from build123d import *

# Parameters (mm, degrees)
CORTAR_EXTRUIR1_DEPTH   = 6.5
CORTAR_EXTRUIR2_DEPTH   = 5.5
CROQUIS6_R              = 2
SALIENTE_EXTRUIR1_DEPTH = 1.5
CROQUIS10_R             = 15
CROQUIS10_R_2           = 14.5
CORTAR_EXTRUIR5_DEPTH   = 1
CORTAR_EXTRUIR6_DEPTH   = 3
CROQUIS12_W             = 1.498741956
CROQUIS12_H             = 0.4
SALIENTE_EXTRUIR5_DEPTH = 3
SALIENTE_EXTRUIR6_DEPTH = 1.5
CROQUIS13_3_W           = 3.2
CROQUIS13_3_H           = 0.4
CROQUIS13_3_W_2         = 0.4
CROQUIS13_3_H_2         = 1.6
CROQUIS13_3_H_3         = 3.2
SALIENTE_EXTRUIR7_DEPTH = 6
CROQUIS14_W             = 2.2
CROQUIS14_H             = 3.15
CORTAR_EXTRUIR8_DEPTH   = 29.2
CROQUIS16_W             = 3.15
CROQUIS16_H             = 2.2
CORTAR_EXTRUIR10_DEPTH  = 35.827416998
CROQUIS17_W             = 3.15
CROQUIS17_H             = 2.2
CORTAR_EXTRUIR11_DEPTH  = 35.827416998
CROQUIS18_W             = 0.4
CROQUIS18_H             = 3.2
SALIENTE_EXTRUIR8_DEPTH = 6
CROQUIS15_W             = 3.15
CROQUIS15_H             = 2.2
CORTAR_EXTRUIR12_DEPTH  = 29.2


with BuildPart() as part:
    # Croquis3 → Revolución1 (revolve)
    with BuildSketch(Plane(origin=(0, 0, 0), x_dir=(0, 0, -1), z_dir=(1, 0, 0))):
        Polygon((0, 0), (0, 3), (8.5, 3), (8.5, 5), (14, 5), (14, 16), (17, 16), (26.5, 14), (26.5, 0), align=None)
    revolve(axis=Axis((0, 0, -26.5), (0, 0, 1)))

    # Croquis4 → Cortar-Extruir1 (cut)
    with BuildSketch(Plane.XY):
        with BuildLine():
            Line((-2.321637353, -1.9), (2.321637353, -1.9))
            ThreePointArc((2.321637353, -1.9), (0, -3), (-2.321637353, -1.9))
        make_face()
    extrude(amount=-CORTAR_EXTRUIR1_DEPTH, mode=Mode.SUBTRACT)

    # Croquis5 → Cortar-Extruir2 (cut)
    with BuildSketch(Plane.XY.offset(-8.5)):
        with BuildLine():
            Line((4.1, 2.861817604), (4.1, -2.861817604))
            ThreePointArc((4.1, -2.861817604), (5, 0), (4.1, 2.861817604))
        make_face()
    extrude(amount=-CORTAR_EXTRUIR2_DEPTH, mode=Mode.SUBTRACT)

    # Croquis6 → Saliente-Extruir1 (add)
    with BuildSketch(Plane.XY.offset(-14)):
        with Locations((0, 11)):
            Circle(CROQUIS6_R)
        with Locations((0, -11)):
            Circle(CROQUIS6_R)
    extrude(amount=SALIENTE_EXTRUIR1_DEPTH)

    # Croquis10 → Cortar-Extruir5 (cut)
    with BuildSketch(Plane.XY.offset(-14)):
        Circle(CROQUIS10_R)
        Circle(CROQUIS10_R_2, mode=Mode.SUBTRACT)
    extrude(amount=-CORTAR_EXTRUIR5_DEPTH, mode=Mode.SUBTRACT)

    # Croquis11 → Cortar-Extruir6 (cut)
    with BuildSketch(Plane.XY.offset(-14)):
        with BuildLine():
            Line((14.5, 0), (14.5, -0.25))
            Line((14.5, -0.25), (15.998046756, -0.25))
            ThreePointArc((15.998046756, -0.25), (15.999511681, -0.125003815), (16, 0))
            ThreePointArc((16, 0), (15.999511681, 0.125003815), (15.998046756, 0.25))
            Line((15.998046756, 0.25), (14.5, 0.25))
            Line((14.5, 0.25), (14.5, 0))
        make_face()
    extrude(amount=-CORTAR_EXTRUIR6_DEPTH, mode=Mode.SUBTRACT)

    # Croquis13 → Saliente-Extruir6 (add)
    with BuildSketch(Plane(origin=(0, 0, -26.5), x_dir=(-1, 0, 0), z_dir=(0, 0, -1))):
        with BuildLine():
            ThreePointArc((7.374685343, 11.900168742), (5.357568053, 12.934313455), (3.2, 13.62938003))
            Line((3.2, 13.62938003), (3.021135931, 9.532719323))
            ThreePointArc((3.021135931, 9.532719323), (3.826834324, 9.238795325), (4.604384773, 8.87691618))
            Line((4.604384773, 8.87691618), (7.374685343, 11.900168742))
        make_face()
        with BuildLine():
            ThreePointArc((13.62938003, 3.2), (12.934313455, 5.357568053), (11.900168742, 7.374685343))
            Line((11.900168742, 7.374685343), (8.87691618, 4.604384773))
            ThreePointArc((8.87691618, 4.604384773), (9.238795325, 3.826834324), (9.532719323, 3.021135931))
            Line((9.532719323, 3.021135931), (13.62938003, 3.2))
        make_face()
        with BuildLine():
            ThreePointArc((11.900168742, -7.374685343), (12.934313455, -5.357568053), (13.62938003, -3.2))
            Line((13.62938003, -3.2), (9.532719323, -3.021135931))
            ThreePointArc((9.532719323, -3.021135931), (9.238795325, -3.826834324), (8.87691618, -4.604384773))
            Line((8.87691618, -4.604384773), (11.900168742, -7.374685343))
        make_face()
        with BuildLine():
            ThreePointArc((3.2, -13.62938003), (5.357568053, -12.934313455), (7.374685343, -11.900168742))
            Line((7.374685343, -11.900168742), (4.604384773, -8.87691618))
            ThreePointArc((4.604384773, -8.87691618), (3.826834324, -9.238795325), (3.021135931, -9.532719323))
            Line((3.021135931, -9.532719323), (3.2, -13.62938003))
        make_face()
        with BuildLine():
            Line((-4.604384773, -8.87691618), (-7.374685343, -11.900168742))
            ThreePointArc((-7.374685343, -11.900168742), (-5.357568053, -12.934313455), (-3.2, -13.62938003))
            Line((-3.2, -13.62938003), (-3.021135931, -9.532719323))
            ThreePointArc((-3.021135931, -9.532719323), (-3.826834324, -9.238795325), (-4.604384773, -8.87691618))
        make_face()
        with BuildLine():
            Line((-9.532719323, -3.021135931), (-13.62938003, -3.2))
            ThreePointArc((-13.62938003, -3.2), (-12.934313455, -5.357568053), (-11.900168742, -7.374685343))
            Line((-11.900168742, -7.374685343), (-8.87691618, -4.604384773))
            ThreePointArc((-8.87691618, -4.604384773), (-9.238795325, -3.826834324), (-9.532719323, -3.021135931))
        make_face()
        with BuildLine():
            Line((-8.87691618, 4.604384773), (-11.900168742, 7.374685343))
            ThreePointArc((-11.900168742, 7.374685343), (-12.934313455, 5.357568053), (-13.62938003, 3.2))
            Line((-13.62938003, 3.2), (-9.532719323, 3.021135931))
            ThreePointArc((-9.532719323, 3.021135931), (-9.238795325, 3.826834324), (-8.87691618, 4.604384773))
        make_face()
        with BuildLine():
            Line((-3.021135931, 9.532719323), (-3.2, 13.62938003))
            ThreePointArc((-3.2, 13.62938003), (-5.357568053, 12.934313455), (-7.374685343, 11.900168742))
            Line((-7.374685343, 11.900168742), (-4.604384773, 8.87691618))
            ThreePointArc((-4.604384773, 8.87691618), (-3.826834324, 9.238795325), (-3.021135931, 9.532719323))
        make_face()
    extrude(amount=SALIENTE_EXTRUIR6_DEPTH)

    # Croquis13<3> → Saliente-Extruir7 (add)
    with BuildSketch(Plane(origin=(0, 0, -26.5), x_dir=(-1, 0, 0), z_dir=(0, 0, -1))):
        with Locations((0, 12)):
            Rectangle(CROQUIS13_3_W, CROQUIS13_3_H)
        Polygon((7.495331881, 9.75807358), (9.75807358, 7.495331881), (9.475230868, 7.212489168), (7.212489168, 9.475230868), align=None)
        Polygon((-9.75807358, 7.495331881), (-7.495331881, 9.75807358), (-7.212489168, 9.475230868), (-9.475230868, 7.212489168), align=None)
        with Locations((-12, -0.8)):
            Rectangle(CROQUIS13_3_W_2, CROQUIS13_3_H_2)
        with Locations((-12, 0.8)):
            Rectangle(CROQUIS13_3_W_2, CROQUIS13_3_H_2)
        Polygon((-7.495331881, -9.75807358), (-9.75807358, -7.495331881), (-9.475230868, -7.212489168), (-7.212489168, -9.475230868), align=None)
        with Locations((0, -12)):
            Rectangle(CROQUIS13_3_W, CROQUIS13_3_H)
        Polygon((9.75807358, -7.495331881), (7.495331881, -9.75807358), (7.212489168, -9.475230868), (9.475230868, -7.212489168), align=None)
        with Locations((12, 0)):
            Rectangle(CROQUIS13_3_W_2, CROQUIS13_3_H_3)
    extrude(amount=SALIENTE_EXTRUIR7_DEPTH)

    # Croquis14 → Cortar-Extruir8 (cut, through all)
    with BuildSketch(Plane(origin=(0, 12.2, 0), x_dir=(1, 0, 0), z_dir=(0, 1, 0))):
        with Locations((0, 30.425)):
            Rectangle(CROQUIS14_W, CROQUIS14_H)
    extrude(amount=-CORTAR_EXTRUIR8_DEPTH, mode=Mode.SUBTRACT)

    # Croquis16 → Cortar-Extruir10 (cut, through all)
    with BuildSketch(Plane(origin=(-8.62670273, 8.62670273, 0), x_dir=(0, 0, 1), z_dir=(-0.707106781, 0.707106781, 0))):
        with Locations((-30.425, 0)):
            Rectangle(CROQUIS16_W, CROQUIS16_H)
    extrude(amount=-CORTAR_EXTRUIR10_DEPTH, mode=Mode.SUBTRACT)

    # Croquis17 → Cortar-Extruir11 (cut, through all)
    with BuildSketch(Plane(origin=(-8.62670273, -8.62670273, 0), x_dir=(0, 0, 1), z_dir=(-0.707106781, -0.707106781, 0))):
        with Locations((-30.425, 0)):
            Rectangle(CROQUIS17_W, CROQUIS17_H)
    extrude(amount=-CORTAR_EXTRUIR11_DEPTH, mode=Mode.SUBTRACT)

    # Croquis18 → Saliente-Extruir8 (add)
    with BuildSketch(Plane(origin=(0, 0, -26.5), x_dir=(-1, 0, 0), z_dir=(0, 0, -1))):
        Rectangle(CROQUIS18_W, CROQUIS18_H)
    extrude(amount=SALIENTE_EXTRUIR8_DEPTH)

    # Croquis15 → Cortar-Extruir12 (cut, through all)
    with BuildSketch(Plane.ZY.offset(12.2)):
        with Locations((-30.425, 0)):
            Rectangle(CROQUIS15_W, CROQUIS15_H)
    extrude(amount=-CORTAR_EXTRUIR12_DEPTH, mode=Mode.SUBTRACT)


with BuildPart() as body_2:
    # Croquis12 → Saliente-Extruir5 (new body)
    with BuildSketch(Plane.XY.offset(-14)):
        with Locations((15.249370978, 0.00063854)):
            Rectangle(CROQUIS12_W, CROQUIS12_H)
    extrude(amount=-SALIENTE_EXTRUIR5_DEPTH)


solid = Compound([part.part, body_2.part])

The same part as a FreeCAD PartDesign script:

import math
import FreeCAD as App
import Part
import Sketcher
Q = App.Units.Quantity


def add_polygon(sketch, points):
    """Adds a closed chain of lines whose ends are joined by coincident constraints."""
    first, n = sketch.GeometryCount, len(points)
    for a, b in zip(points, points[1:] + points[:1]):
        sketch.addGeometry(Part.LineSegment(App.Vector(*a, 0), App.Vector(*b, 0)), False)
    for i in range(n):
        sketch.addConstraint(Sketcher.Constraint("Coincident", first + i, 2, first + (i + 1) % n, 1))

doc = App.newDocument("Part")
body = doc.addObject("PartDesign::Body", "Body")

sketch1 = body.newObject("Sketcher::SketchObject", "Sketch")
sketch1.AttachmentSupport = (doc.getObject("YZ_Plane"), [""])
sketch1.MapMode = "FlatFace"
add_polygon(sketch1, [(3, 0), (0, 0), (0, -26.5), (14, -26.5), (16, -17), (16, -14), (5, -14), (5, -8.5), (3, -8.5)])
sketch1.addConstraint(Sketcher.Constraint("Horizontal", 0))
sketch1.addConstraint(Sketcher.Constraint("Vertical", 1))
sketch1.addConstraint(Sketcher.Constraint("Horizontal", 2))
sketch1.addConstraint(Sketcher.Constraint("Vertical", 4))
sketch1.addConstraint(Sketcher.Constraint("Horizontal", 5))
sketch1.addConstraint(Sketcher.Constraint("Vertical", 6))
sketch1.addConstraint(Sketcher.Constraint("Horizontal", 7))
sketch1.addConstraint(Sketcher.Constraint("Vertical", 8))
sketch1.addConstraint(Sketcher.Constraint("Coincident", 0, 2, -1, 1))
sketch1.addConstraint(Sketcher.Constraint("Equal", 0, 4))
sketch1.addConstraint(Sketcher.Constraint("DistanceX", 0, 2, 0, 1, 3.0))
sketch1.addConstraint(Sketcher.Constraint("DistanceX", 2, 1, 2, 2, 14.0))
sketch1.addConstraint(Sketcher.Constraint("DistanceX", 5, 2, 5, 1, 11.0))
sketch1.addConstraint(Sketcher.Constraint("DistanceX", 7, 2, 7, 1, 2.0))
sketch1.addConstraint(Sketcher.Constraint("DistanceY", 1, 2, 1, 1, 26.5))
sketch1.addConstraint(Sketcher.Constraint("DistanceY", 6, 1, 6, 2, 5.5))
sketch1.addConstraint(Sketcher.Constraint("DistanceY", 8, 1, 8, 2, 8.5))
revolution = body.newObject("PartDesign::Revolution", "Revolution")
revolution.Profile = sketch1
revolution.ReferenceAxis = (sketch1, ["V_Axis"])
revolution.Angle = 360

sketch2 = body.newObject("Sketcher::SketchObject", "Sketch001")
sketch2.AttachmentSupport = (doc.getObject("XY_Plane"), [""])
sketch2.MapMode = "FlatFace"
sketch2.addGeometry(Part.LineSegment(App.Vector(2.3, -1.9, 0), App.Vector(-2.3, -1.9, 0)), False)
sketch2.addGeometry(Part.ArcOfCircle(Part.Circle(App.Vector(0, 0, 0), App.Vector(0, 0, 1), 3), math.radians(-141), math.radians(-39)), False)
sketch2.addConstraint(Sketcher.Constraint("Coincident", 0, 1, 1, 2))
sketch2.addConstraint(Sketcher.Constraint("Coincident", 1, 1, 0, 2))
sketch2.addConstraint(Sketcher.Constraint("Horizontal", 0))
sketch2.addConstraint(Sketcher.Constraint("Coincident", 1, 3, -1, 1))
sketch2.addConstraint(Sketcher.Constraint("Radius", 1, 3.0))
sketch2.addConstraint(Sketcher.Constraint("DistanceY", 0, 1, -1, 1, 1.9))
pocket1 = body.newObject("PartDesign::Pocket", "Pocket")
pocket1.Profile = sketch2
pocket1.Length = 6.5

sketch3 = body.newObject("Sketcher::SketchObject", "Sketch002")
sketch3.AttachmentSupport = (doc.getObject("XY_Plane"), [""])
sketch3.MapMode = "FlatFace"
sketch3.AttachmentOffset = App.Placement(App.Vector(0, 0, -8.5), App.Rotation())
sketch3.addGeometry(Part.LineSegment(App.Vector(4.1, 2.9, 0), App.Vector(4.1, -2.9, 0)), False)
sketch3.addGeometry(Part.ArcOfCircle(Part.Circle(App.Vector(0, 0, 0), App.Vector(0, 0, 1), 5), math.radians(-35), math.radians(35)), False)
sketch3.addConstraint(Sketcher.Constraint("Coincident", 0, 1, 1, 2))
sketch3.addConstraint(Sketcher.Constraint("Coincident", 1, 1, 0, 2))
sketch3.addConstraint(Sketcher.Constraint("Vertical", 0))
sketch3.addConstraint(Sketcher.Constraint("Coincident", 1, 3, -1, 1))
sketch3.addConstraint(Sketcher.Constraint("Radius", 1, 5.0))
sketch3.addConstraint(Sketcher.Constraint("DistanceX", -1, 1, 0, 1, 4.1))
pocket2 = body.newObject("PartDesign::Pocket", "Pocket001")
pocket2.Profile = sketch3
pocket2.Length = 5.5

sketch4 = body.newObject("Sketcher::SketchObject", "Sketch003")
sketch4.AttachmentSupport = (doc.getObject("XY_Plane"), [""])
sketch4.MapMode = "FlatFace"
sketch4.AttachmentOffset = App.Placement(App.Vector(0, 0, -14), App.Rotation())
sketch4.addGeometry(Part.Circle(App.Vector(0, 11, 0), App.Vector(0, 0, 1), 2), False)
sketch4.addGeometry(Part.Circle(App.Vector(0, -11, 0), App.Vector(0, 0, 1), 2), False)
sketch4.addConstraint(Sketcher.Constraint("Equal", 0, 1))
sketch4.addConstraint(Sketcher.Constraint("Symmetric", 0, 3, 1, 3, -1, 1))
sketch4.addConstraint(Sketcher.Constraint("PointOnObject", 0, 3, -2))
sketch4.addConstraint(Sketcher.Constraint("Diameter", 0, 4.0))
sketch4.addConstraint(Sketcher.Constraint("DistanceY", -1, 1, 0, 3, 11.0))
pad1 = body.newObject("PartDesign::Pad", "Pad")
pad1.Profile = sketch4
pad1.Length = 1.5

sketch5 = body.newObject("Sketcher::SketchObject", "Sketch004")
sketch5.AttachmentSupport = (doc.getObject("XY_Plane"), [""])
sketch5.MapMode = "FlatFace"
sketch5.AttachmentOffset = App.Placement(App.Vector(0, 0, -14), App.Rotation())
sketch5.addGeometry(Part.Circle(App.Vector(0, 0, 0), App.Vector(0, 0, 1), 15), False)
sketch5.addGeometry(Part.Circle(App.Vector(0, 0, 0), App.Vector(0, 0, 1), 14), False)
sketch5.addConstraint(Sketcher.Constraint("Coincident", 0, 3, -1, 1))
sketch5.addConstraint(Sketcher.Constraint("Coincident", 1, 3, -1, 1))
sketch5.addConstraint(Sketcher.Constraint("Diameter", 0, 30.0))
sketch5.addConstraint(Sketcher.Constraint("Diameter", 1, 29.0))
pocket3 = body.newObject("PartDesign::Pocket", "Pocket002")
pocket3.Profile = sketch5
pocket3.Length = 1

sketch6 = body.newObject("Sketcher::SketchObject", "Sketch005")
sketch6.AttachmentSupport = (doc.getObject("XY_Plane"), [""])
sketch6.MapMode = "FlatFace"
sketch6.AttachmentOffset = App.Placement(App.Vector(0, 0, -14), App.Rotation())
sketch6.addGeometry(Part.LineSegment(App.Vector(14.5, -0.25, 0), App.Vector(16, -0.25, 0)), False)
sketch6.addGeometry(Part.ArcOfCircle(Part.Circle(App.Vector(0, 0, 0), App.Vector(0, 0, 1), 16), math.radians(-0.9), math.radians(0)), False)
sketch6.addGeometry(Part.ArcOfCircle(Part.Circle(App.Vector(0, 0, 0), App.Vector(0, 0, 1), 16), math.radians(0), math.radians(0.9)), False)
sketch6.addGeometry(Part.LineSegment(App.Vector(16, 0.25, 0), App.Vector(14.5, 0.25, 0)), False)
sketch6.addGeometry(Part.LineSegment(App.Vector(14.5, 0.25, 0), App.Vector(14.5, -0.25, 0)), False)
sketch6.addConstraint(Sketcher.Constraint("Coincident", 0, 2, 1, 1))
sketch6.addConstraint(Sketcher.Constraint("Tangent", 1, 2, 2, 1))
sketch6.addConstraint(Sketcher.Constraint("Coincident", 2, 2, 3, 1))
sketch6.addConstraint(Sketcher.Constraint("Coincident", 3, 2, 4, 1))
sketch6.addConstraint(Sketcher.Constraint("Coincident", 4, 2, 0, 1))
sketch6.addConstraint(Sketcher.Constraint("Horizontal", 0))
sketch6.addConstraint(Sketcher.Constraint("Horizontal", 3))
sketch6.addConstraint(Sketcher.Constraint("Vertical", 4))
sketch6.addConstraint(Sketcher.Constraint("Equal", 1, 2))
sketch6.addConstraint(Sketcher.Constraint("Symmetric", 0, 2, 2, 2, -1))
sketch6.addConstraint(Sketcher.Constraint("PointOnObject", 1, 2, -1))
sketch6.addConstraint(Sketcher.Constraint("DistanceY", 4, 2, 4, 1, 0.5))
sketch6.addConstraint(Sketcher.Constraint("DistanceX", -1, 1, 1, 2, 16.0))
sketch6.addConstraint(Sketcher.Constraint("DistanceX", -1, 1, 3, 2, 14.5))
sketch6.addConstraint(Sketcher.Constraint("Radius", 1, 16.00002))
pocket4 = body.newObject("PartDesign::Pocket", "Pocket003")
pocket4.Profile = sketch6
pocket4.Length = 3

sketch7 = body.newObject("Sketcher::SketchObject", "Sketch006")
sketch7.AttachmentSupport = (doc.getObject("XY_Plane"), [""])
sketch7.MapMode = "FlatFace"
sketch7.AttachmentOffset = App.Placement(App.Vector(0, 0, -26.5), App.Rotation())
sketch7.addGeometry(Part.ArcOfCircle(Part.Circle(App.Vector(0, 0, 0), App.Vector(0, 0, 1), 14), math.radians(103.21), math.radians(121.79)), False)
sketch7.addGeometry(Part.LineSegment(App.Vector(-3.2, 13.6, 0), App.Vector(-3, 9.5, 0)), False)
sketch7.addGeometry(Part.ArcOfCircle(Part.Circle(App.Vector(0, 0, 0), App.Vector(0, 0, 1), 10), math.radians(107.58), math.radians(117.42)), False)
sketch7.addGeometry(Part.LineSegment(App.Vector(-4.6, 8.9, 0), App.Vector(-7.4, 11.9, 0)), False)
sketch7.addGeometry(Part.ArcOfCircle(Part.Circle(App.Vector(0, 0, 0), App.Vector(0, 0, 1), 14), math.radians(148.21), math.radians(166.79)), False)
sketch7.addGeometry(Part.LineSegment(App.Vector(-11.9, 7.4, 0), App.Vector(-8.9, 4.6, 0)), False)
sketch7.addGeometry(Part.ArcOfCircle(Part.Circle(App.Vector(0, 0, 0), App.Vector(0, 0, 1), 10), math.radians(152.58), math.radians(162.42)), False)
sketch7.addGeometry(Part.LineSegment(App.Vector(-9.5, 3, 0), App.Vector(-13.6, 3.2, 0)), False)
sketch7.addGeometry(Part.ArcOfCircle(Part.Circle(App.Vector(0, 0, 0), App.Vector(0, 0, 1), 14), math.radians(-166.79), math.radians(-148.21)), False)
sketch7.addGeometry(Part.LineSegment(App.Vector(-13.6, -3.2, 0), App.Vector(-9.5, -3, 0)), False)
sketch7.addGeometry(Part.ArcOfCircle(Part.Circle(App.Vector(0, 0, 0), App.Vector(0, 0, 1), 10), math.radians(-162.42), math.radians(-152.58)), False)
sketch7.addGeometry(Part.LineSegment(App.Vector(-8.9, -4.6, 0), App.Vector(-11.9, -7.4, 0)), False)
sketch7.addGeometry(Part.ArcOfCircle(Part.Circle(App.Vector(0, 0, 0), App.Vector(0, 0, 1), 14), math.radians(-121.79), math.radians(-103.21)), False)
sketch7.addGeometry(Part.LineSegment(App.Vector(-7.4, -11.9, 0), App.Vector(-4.6, -8.9, 0)), False)
sketch7.addGeometry(Part.ArcOfCircle(Part.Circle(App.Vector(0, 0, 0), App.Vector(0, 0, 1), 10), math.radians(-117.42), math.radians(-107.58)), False)
sketch7.addGeometry(Part.LineSegment(App.Vector(-3, -9.5, 0), App.Vector(-3.2, -13.6, 0)), False)
sketch7.addGeometry(Part.LineSegment(App.Vector(4.6, -8.9, 0), App.Vector(7.4, -11.9, 0)), False)
sketch7.addGeometry(Part.ArcOfCircle(Part.Circle(App.Vector(0, 0, 0), App.Vector(0, 0, 1), 14), math.radians(-76.79), math.radians(-58.21)), False)
sketch7.addGeometry(Part.LineSegment(App.Vector(3.2, -13.6, 0), App.Vector(3, -9.5, 0)), False)
sketch7.addGeometry(Part.ArcOfCircle(Part.Circle(App.Vector(0, 0, 0), App.Vector(0, 0, 1), 10), math.radians(-72.42), math.radians(-62.58)), False)
sketch7.addGeometry(Part.LineSegment(App.Vector(9.5, -3, 0), App.Vector(13.6, -3.2, 0)), False)
sketch7.addGeometry(Part.ArcOfCircle(Part.Circle(App.Vector(0, 0, 0), App.Vector(0, 0, 1), 14), math.radians(-31.79), math.radians(-13.21)), False)
sketch7.addGeometry(Part.LineSegment(App.Vector(11.9, -7.4, 0), App.Vector(8.9, -4.6, 0)), False)
sketch7.addGeometry(Part.ArcOfCircle(Part.Circle(App.Vector(0, 0, 0), App.Vector(0, 0, 1), 10), math.radians(-27.42), math.radians(-17.58)), False)
sketch7.addGeometry(Part.LineSegment(App.Vector(8.9, 4.6, 0), App.Vector(11.9, 7.4, 0)), False)
sketch7.addGeometry(Part.ArcOfCircle(Part.Circle(App.Vector(0, 0, 0), App.Vector(0, 0, 1), 14), math.radians(13.21), math.radians(31.79)), False)
sketch7.addGeometry(Part.LineSegment(App.Vector(13.6, 3.2, 0), App.Vector(9.5, 3, 0)), False)
sketch7.addGeometry(Part.ArcOfCircle(Part.Circle(App.Vector(0, 0, 0), App.Vector(0, 0, 1), 10), math.radians(17.58), math.radians(27.42)), False)
sketch7.addGeometry(Part.LineSegment(App.Vector(3, 9.5, 0), App.Vector(3.2, 13.6, 0)), False)
sketch7.addGeometry(Part.ArcOfCircle(Part.Circle(App.Vector(0, 0, 0), App.Vector(0, 0, 1), 14), math.radians(58.21), math.radians(76.79)), False)
sketch7.addGeometry(Part.LineSegment(App.Vector(7.4, 11.9, 0), App.Vector(4.6, 8.9, 0)), False)
sketch7.addGeometry(Part.ArcOfCircle(Part.Circle(App.Vector(0, 0, 0), App.Vector(0, 0, 1), 10), math.radians(62.58), math.radians(72.42)), False)
sketch7.addConstraint(Sketcher.Constraint("Coincident", 0, 1, 1, 1))
sketch7.addConstraint(Sketcher.Constraint("Coincident", 1, 2, 2, 1))
sketch7.addConstraint(Sketcher.Constraint("Coincident", 2, 2, 3, 1))
sketch7.addConstraint(Sketcher.Constraint("Coincident", 3, 2, 0, 2))
sketch7.addConstraint(Sketcher.Constraint("Coincident", 4, 1, 5, 1))
sketch7.addConstraint(Sketcher.Constraint("Coincident", 5, 2, 6, 1))
sketch7.addConstraint(Sketcher.Constraint("Coincident", 6, 2, 7, 1))
sketch7.addConstraint(Sketcher.Constraint("Coincident", 7, 2, 4, 2))
sketch7.addConstraint(Sketcher.Constraint("Coincident", 8, 1, 9, 1))
sketch7.addConstraint(Sketcher.Constraint("Coincident", 9, 2, 10, 1))
sketch7.addConstraint(Sketcher.Constraint("Coincident", 10, 2, 11, 1))
sketch7.addConstraint(Sketcher.Constraint("Coincident", 11, 2, 8, 2))
sketch7.addConstraint(Sketcher.Constraint("Coincident", 12, 1, 13, 1))
sketch7.addConstraint(Sketcher.Constraint("Coincident", 13, 2, 14, 1))
sketch7.addConstraint(Sketcher.Constraint("Coincident", 14, 2, 15, 1))
sketch7.addConstraint(Sketcher.Constraint("Coincident", 15, 2, 12, 2))
sketch7.addConstraint(Sketcher.Constraint("Coincident", 16, 2, 17, 2))
sketch7.addConstraint(Sketcher.Constraint("Coincident", 17, 1, 18, 1))
sketch7.addConstraint(Sketcher.Constraint("Coincident", 18, 2, 19, 1))
sketch7.addConstraint(Sketcher.Constraint("Coincident", 19, 2, 16, 1))
sketch7.addConstraint(Sketcher.Constraint("Coincident", 20, 2, 21, 2))
sketch7.addConstraint(Sketcher.Constraint("Coincident", 21, 1, 22, 1))
sketch7.addConstraint(Sketcher.Constraint("Coincident", 22, 2, 23, 1))
sketch7.addConstraint(Sketcher.Constraint("Coincident", 23, 2, 20, 1))
sketch7.addConstraint(Sketcher.Constraint("Coincident", 24, 2, 25, 2))
sketch7.addConstraint(Sketcher.Constraint("Coincident", 25, 1, 26, 1))
sketch7.addConstraint(Sketcher.Constraint("Coincident", 26, 2, 27, 1))
sketch7.addConstraint(Sketcher.Constraint("Coincident", 27, 2, 24, 1))
sketch7.addConstraint(Sketcher.Constraint("Coincident", 28, 2, 29, 2))
sketch7.addConstraint(Sketcher.Constraint("Coincident", 29, 1, 30, 1))
sketch7.addConstraint(Sketcher.Constraint("Coincident", 30, 2, 31, 1))
sketch7.addConstraint(Sketcher.Constraint("Coincident", 31, 2, 28, 1))
sketch7.addConstraint(Sketcher.Constraint("Coincident", 0, 3, -1, 1))
sketch7.addConstraint(Sketcher.Constraint("Coincident", 2, 3, -1, 1))
sketch7.addConstraint(Sketcher.Constraint("Coincident", 4, 3, -1, 1))
sketch7.addConstraint(Sketcher.Constraint("Coincident", 6, 3, -1, 1))
sketch7.addConstraint(Sketcher.Constraint("Coincident", 8, 3, -1, 1))
sketch7.addConstraint(Sketcher.Constraint("Coincident", 10, 3, -1, 1))
sketch7.addConstraint(Sketcher.Constraint("Coincident", 12, 3, -1, 1))
sketch7.addConstraint(Sketcher.Constraint("Coincident", 14, 3, -1, 1))
sketch7.addConstraint(Sketcher.Constraint("Coincident", 17, 3, -1, 1))
sketch7.addConstraint(Sketcher.Constraint("Coincident", 19, 3, -1, 1))
sketch7.addConstraint(Sketcher.Constraint("Coincident", 21, 3, -1, 1))
sketch7.addConstraint(Sketcher.Constraint("Coincident", 23, 3, -1, 1))
sketch7.addConstraint(Sketcher.Constraint("Coincident", 25, 3, -1, 1))
sketch7.addConstraint(Sketcher.Constraint("Coincident", 27, 3, -1, 1))
sketch7.addConstraint(Sketcher.Constraint("Coincident", 29, 3, -1, 1))
sketch7.addConstraint(Sketcher.Constraint("Coincident", 31, 3, -1, 1))
sketch7.addConstraint(Sketcher.Constraint("Equal", 0, 4))
sketch7.addConstraint(Sketcher.Constraint("Equal", 2, 6))
sketch7.addConstraint(Sketcher.Constraint("Equal", 4, 8))
sketch7.addConstraint(Sketcher.Constraint("Equal", 6, 10))
sketch7.addConstraint(Sketcher.Constraint("Equal", 8, 12))
sketch7.addConstraint(Sketcher.Constraint("Equal", 10, 14))
sketch7.addConstraint(Sketcher.Constraint("Equal", 12, 17))
sketch7.addConstraint(Sketcher.Constraint("Equal", 14, 19))
sketch7.addConstraint(Sketcher.Constraint("Equal", 17, 21))
sketch7.addConstraint(Sketcher.Constraint("Equal", 19, 23))
sketch7.addConstraint(Sketcher.Constraint("Equal", 21, 25))
sketch7.addConstraint(Sketcher.Constraint("Equal", 23, 27))
sketch7.addConstraint(Sketcher.Constraint("Equal", 25, 29))
sketch7.addConstraint(Sketcher.Constraint("Equal", 27, 31))
sketch7.addConstraint(Sketcher.Constraint("Perpendicular", 1, 9))
sketch7.addConstraint(Sketcher.Constraint("Perpendicular", 3, 11))
sketch7.addConstraint(Sketcher.Constraint("Perpendicular", 5, 13))
sketch7.addConstraint(Sketcher.Constraint("Perpendicular", 7, 15))
sketch7.addConstraint(Sketcher.Constraint("Perpendicular", 11, 16))
sketch7.addConstraint(Sketcher.Constraint("Perpendicular", 9, 18))
sketch7.addConstraint(Sketcher.Constraint("Perpendicular", 15, 20))
sketch7.addConstraint(Sketcher.Constraint("Perpendicular", 13, 22))
sketch7.addConstraint(Sketcher.Constraint("Perpendicular", 16, 24))
sketch7.addConstraint(Sketcher.Constraint("Perpendicular", 18, 26))
sketch7.addConstraint(Sketcher.Constraint("Perpendicular", 20, 28))
sketch7.addConstraint(Sketcher.Constraint("Perpendicular", 22, 30))
sketch7.addConstraint(Sketcher.Constraint("Horizontal", 12, 1, 16, 2))
sketch7.addConstraint(Sketcher.Constraint("Horizontal", 15, 2, 17, 1))
sketch7.addConstraint(Sketcher.Constraint("Horizontal", 14, 2, 18, 2))
sketch7.addConstraint(Sketcher.Constraint("Horizontal", 13, 2, 19, 2))
sketch7.addConstraint(Sketcher.Constraint("Horizontal", 8, 1, 20, 2))
sketch7.addConstraint(Sketcher.Constraint("Horizontal", 11, 2, 21, 1))
sketch7.addConstraint(Sketcher.Constraint("Horizontal", 4, 1, 24, 2))
sketch7.addConstraint(Sketcher.Constraint("Horizontal", 7, 2, 25, 1))
sketch7.addConstraint(Sketcher.Constraint("Horizontal", 0, 1, 28, 2))
sketch7.addConstraint(Sketcher.Constraint("Horizontal", 3, 2, 29, 1))
sketch7.addConstraint(Sketcher.Constraint("Vertical", 7, 2, 8, 1))
sketch7.addConstraint(Sketcher.Constraint("Vertical", 5, 2, 10, 2))
sketch7.addConstraint(Sketcher.Constraint("Vertical", 3, 2, 12, 1))
sketch7.addConstraint(Sketcher.Constraint("Vertical", 1, 2, 14, 2))
sketch7.addConstraint(Sketcher.Constraint("Equal", 1, 3))
sketch7.addConstraint(Sketcher.Constraint("Equal", 3, 5))
sketch7.addConstraint(Sketcher.Constraint("Equal", 5, 7))
sketch7.addConstraint(Sketcher.Constraint("Radius", 0, 14.0))
sketch7.addConstraint(Sketcher.Constraint("Radius", 2, 10.0))
sketch7.addConstraint(Sketcher.Constraint("Angle", 1, Q("-87.5 deg")))
sketch7.addConstraint(Sketcher.Constraint("Angle", 3, Q("132.5 deg")))
sketch7.addConstraint(Sketcher.Constraint("DistanceX", 0, 1, -1, 1, 3.2))
pad2 = body.newObject("PartDesign::Pad", "Pad001")
pad2.Profile = sketch7
pad2.Length = 1.5
pad2.Reversed = True

sketch8 = body.newObject("Sketcher::SketchObject", "Sketch007")
sketch8.AttachmentSupport = (doc.getObject("XY_Plane"), [""])
sketch8.MapMode = "FlatFace"
sketch8.AttachmentOffset = App.Placement(App.Vector(0, 0, -26.5), App.Rotation())
add_polygon(sketch8, [(1.6, 12.2), (1.6, 11.8), (-1.6, 11.8), (-1.6, 12.2)])
add_polygon(sketch8, [(-9.76, 7.5), (-7.5, 9.76), (-7.21, 9.48), (-9.48, 7.21)])
add_polygon(sketch8, [(7.5, 9.76), (9.76, 7.5), (9.48, 7.21), (7.21, 9.48)])
add_polygon(sketch8, [(12.2, -1.6), (11.8, -1.6), (11.8, 1.6), (12.2, 1.6)])
add_polygon(sketch8, [(9.76, -7.5), (7.5, -9.76), (7.21, -9.48), (9.48, -7.21)])
add_polygon(sketch8, [(1.6, -11.8), (1.6, -12.2), (-1.6, -12.2), (-1.6, -11.8)])
add_polygon(sketch8, [(-7.5, -9.76), (-9.76, -7.5), (-9.48, -7.21), (-7.21, -9.48)])
add_polygon(sketch8, [(-11.8, 1.6), (-11.8, -1.6), (-12.2, -1.6), (-12.2, 1.6)])
sketch8.addConstraint(Sketcher.Constraint("Vertical", 0))
sketch8.addConstraint(Sketcher.Constraint("Horizontal", 1))
sketch8.addConstraint(Sketcher.Constraint("Vertical", 2))
sketch8.addConstraint(Sketcher.Constraint("Horizontal", 3))
sketch8.addConstraint(Sketcher.Constraint("Horizontal", 12))
sketch8.addConstraint(Sketcher.Constraint("Vertical", 13))
sketch8.addConstraint(Sketcher.Constraint("Horizontal", 14))
sketch8.addConstraint(Sketcher.Constraint("Vertical", 15))
sketch8.addConstraint(Sketcher.Constraint("Vertical", 20))
sketch8.addConstraint(Sketcher.Constraint("Horizontal", 21))
sketch8.addConstraint(Sketcher.Constraint("Vertical", 22))
sketch8.addConstraint(Sketcher.Constraint("Horizontal", 23))
sketch8.addConstraint(Sketcher.Constraint("Vertical", 28))
sketch8.addConstraint(Sketcher.Constraint("Horizontal", 29))
sketch8.addConstraint(Sketcher.Constraint("Vertical", 30))
sketch8.addConstraint(Sketcher.Constraint("Horizontal", 31))
sketch8.addConstraint(Sketcher.Constraint("Symmetric", 4, 2, 16, 2, -1, 1))
sketch8.addConstraint(Sketcher.Constraint("Symmetric", 5, 2, 17, 2, -1, 1))
sketch8.addConstraint(Sketcher.Constraint("Symmetric", 6, 2, 18, 2, -1, 1))
sketch8.addConstraint(Sketcher.Constraint("Symmetric", 7, 2, 19, 2, -1, 1))
sketch8.addConstraint(Sketcher.Constraint("Symmetric", 2, 2, 20, 2, -1, 1))
sketch8.addConstraint(Sketcher.Constraint("Symmetric", 0, 2, 22, 2, -1, 1))
sketch8.addConstraint(Sketcher.Constraint("Symmetric", 8, 2, 24, 2, -1, 1))
sketch8.addConstraint(Sketcher.Constraint("Symmetric", 9, 2, 25, 2, -1, 1))
sketch8.addConstraint(Sketcher.Constraint("Symmetric", 10, 2, 26, 2, -1, 1))
sketch8.addConstraint(Sketcher.Constraint("Symmetric", 11, 2, 27, 2, -1, 1))
sketch8.addConstraint(Sketcher.Constraint("Symmetric", 13, 2, 28, 2, -1, 1))
sketch8.addConstraint(Sketcher.Constraint("Symmetric", 15, 2, 30, 2, -1, 1))
sketch8.addConstraint(Sketcher.Constraint("Symmetric", 7, 2, 8, 2, -2))
sketch8.addConstraint(Sketcher.Constraint("Symmetric", 6, 2, 9, 2, -2))
sketch8.addConstraint(Sketcher.Constraint("Symmetric", 5, 2, 10, 2, -2))
sketch8.addConstraint(Sketcher.Constraint("Symmetric", 4, 2, 11, 2, -2))
sketch8.addConstraint(Sketcher.Constraint("Perpendicular", 4, 5))
sketch8.addConstraint(Sketcher.Constraint("Perpendicular", 5, 6))
sketch8.addConstraint(Sketcher.Constraint("Perpendicular", 6, 7))
sketch8.addConstraint(Sketcher.Constraint("Parallel", 7, 8))
sketch8.addConstraint(Sketcher.Constraint("Horizontal", 15, 2, 28, 2))
sketch8.addConstraint(Sketcher.Constraint("Vertical", 3, 2, 20, 2))
sketch8.addConstraint(Sketcher.Constraint("Equal", 31, 0))
sketch8.addConstraint(Sketcher.Constraint("Equal", 23, 13))
sketch8.addConstraint(Sketcher.Constraint("DistanceX", 1, 2, 1, 1, 3.2))
sketch8.addConstraint(Sketcher.Constraint("DistanceX", 12, 2, 12, 1, 0.4))
sketch8.addConstraint(Sketcher.Constraint("Distance", 4, 3.2))
sketch8.addConstraint(Sketcher.Constraint("Distance", 5, 0.4))
sketch8.addConstraint(Sketcher.Constraint("DistanceY", -1, 1, 0, 2, 11.8))
sketch8.addConstraint(Sketcher.Constraint("DistanceX", -1, 1, 12, 2, 11.8))
sketch8.addConstraint(Sketcher.Constraint("DistanceX", 4, 2, -1, 1, 7.495332))
sketch8.addConstraint(Sketcher.Constraint("DistanceY", -1, 1, 5, 2, 9.475231))
pad3 = body.newObject("PartDesign::Pad", "Pad002")
pad3.Profile = sketch8
pad3.Length = 6
pad3.Reversed = True

sketch9 = body.newObject("Sketcher::SketchObject", "Sketch008")
sketch9.AttachmentSupport = (doc.getObject("XZ_Plane"), [""])
sketch9.MapMode = "FlatFace"
sketch9.AttachmentOffset = App.Placement(App.Vector(0, 0, -12.2), App.Rotation())
add_polygon(sketch9, [(-1.1, -32), (-1.1, -28.9), (1.1, -28.9), (1.1, -32)])
sketch9.addConstraint(Sketcher.Constraint("Vertical", 0))
sketch9.addConstraint(Sketcher.Constraint("Horizontal", 1))
sketch9.addConstraint(Sketcher.Constraint("Vertical", 2))
sketch9.addConstraint(Sketcher.Constraint("Horizontal", 3))
sketch9.addConstraint(Sketcher.Constraint("DistanceX", 1, 1, 1, 2, 2.2))
sketch9.addConstraint(Sketcher.Constraint("DistanceY", 2, 2, -1, 1, 32.0))
sketch9.addConstraint(Sketcher.Constraint("DistanceY", 0, 1, 0, 2, 3.15))
sketch9.addConstraint(Sketcher.Constraint("DistanceX", 0, 2, -1, 1, 1.1))
pocket5 = body.newObject("PartDesign::Pocket", "Pocket004")
pocket5.Profile = sketch9
pocket5.Type = "ThroughAll"
pocket5.Reversed = True

sketch10 = body.newObject("Sketcher::SketchObject", "Sketch009")
sketch10.Placement = App.Placement(App.Vector(-8.626703, 8.626703, 0), App.Rotation(App.Vector(0, 0, 1), App.Vector(0.707106781, 0.707106781, 0), App.Vector(-0.707106781, 0.707106781, 0), "ZXY"))
add_polygon(sketch10, [(-32, 1.1), (-32, -1.1), (-28.9, -1.1), (-28.9, 1.1)])
sketch10.addConstraint(Sketcher.Constraint("Vertical", 0))
sketch10.addConstraint(Sketcher.Constraint("Horizontal", 1))
sketch10.addConstraint(Sketcher.Constraint("Vertical", 2))
sketch10.addConstraint(Sketcher.Constraint("Horizontal", 3))
sketch10.addConstraint(Sketcher.Constraint("DistanceY", 0, 2, 0, 1, 2.2))
sketch10.addConstraint(Sketcher.Constraint("DistanceX", 0, 2, -1, 1, 32.0))
sketch10.addConstraint(Sketcher.Constraint("DistanceX", 1, 1, 1, 2, 3.15))
sketch10.addConstraint(Sketcher.Constraint("DistanceY", 0, 2, -1, 1, 1.1))
pocket6 = body.newObject("PartDesign::Pocket", "Pocket005")
pocket6.Profile = sketch10
pocket6.Type = "ThroughAll"

sketch11 = body.newObject("Sketcher::SketchObject", "Sketch010")
sketch11.Placement = App.Placement(App.Vector(-8.626703, -8.626703, 0), App.Rotation(App.Vector(0, 0, 1), App.Vector(-0.707106781, 0.707106781, 0), App.Vector(-0.707106781, -0.707106781, 0), "ZXY"))
add_polygon(sketch11, [(-32, 1.1), (-32, -1.1), (-28.9, -1.1), (-28.9, 1.1)])
sketch11.addConstraint(Sketcher.Constraint("Vertical", 0))
sketch11.addConstraint(Sketcher.Constraint("Horizontal", 1))
sketch11.addConstraint(Sketcher.Constraint("Vertical", 2))
sketch11.addConstraint(Sketcher.Constraint("Horizontal", 3))
sketch11.addConstraint(Sketcher.Constraint("DistanceY", 0, 2, 0, 1, 2.2))
sketch11.addConstraint(Sketcher.Constraint("DistanceX", 0, 2, -1, 1, 32.0))
sketch11.addConstraint(Sketcher.Constraint("DistanceX", 1, 1, 1, 2, 3.15))
sketch11.addConstraint(Sketcher.Constraint("DistanceY", 0, 2, -1, 1, 1.1))
pocket7 = body.newObject("PartDesign::Pocket", "Pocket006")
pocket7.Profile = sketch11
pocket7.Type = "ThroughAll"

sketch12 = body.newObject("Sketcher::SketchObject", "Sketch011")
sketch12.AttachmentSupport = (doc.getObject("XY_Plane"), [""])
sketch12.MapMode = "FlatFace"
sketch12.AttachmentOffset = App.Placement(App.Vector(0, 0, -26.5), App.Rotation())
add_polygon(sketch12, [(0.2, 1.6), (0.2, -1.6), (-0.2, -1.6), (-0.2, 1.6)])
sketch12.addConstraint(Sketcher.Constraint("Vertical", 0))
sketch12.addConstraint(Sketcher.Constraint("Horizontal", 1))
sketch12.addConstraint(Sketcher.Constraint("Vertical", 2))
sketch12.addConstraint(Sketcher.Constraint("Horizontal", 3))
sketch12.addConstraint(Sketcher.Constraint("Symmetric", 0, 2, 2, 2, -1, 1))
sketch12.addConstraint(Sketcher.Constraint("DistanceX", 1, 2, 1, 1, 0.4))
sketch12.addConstraint(Sketcher.Constraint("DistanceY", 0, 2, 0, 1, 3.2))
pad4 = body.newObject("PartDesign::Pad", "Pad003")
pad4.Profile = sketch12
pad4.Length = 6
pad4.Reversed = True

sketch13 = body.newObject("Sketcher::SketchObject", "Sketch012")
sketch13.AttachmentSupport = (doc.getObject("YZ_Plane"), [""])
sketch13.MapMode = "FlatFace"
sketch13.AttachmentOffset = App.Placement(App.Vector(0, 0, -12.2), App.Rotation())
add_polygon(sketch13, [(1.1, -32), (-1.1, -32), (-1.1, -28.9), (1.1, -28.9)])
sketch13.addConstraint(Sketcher.Constraint("Horizontal", 0))
sketch13.addConstraint(Sketcher.Constraint("Vertical", 1))
sketch13.addConstraint(Sketcher.Constraint("Horizontal", 2))
sketch13.addConstraint(Sketcher.Constraint("Vertical", 3))
sketch13.addConstraint(Sketcher.Constraint("DistanceX", 0, 2, 0, 1, 2.2))
sketch13.addConstraint(Sketcher.Constraint("DistanceY", 0, 2, -1, 1, 32.0))
sketch13.addConstraint(Sketcher.Constraint("DistanceY", 1, 1, 1, 2, 3.15))
sketch13.addConstraint(Sketcher.Constraint("DistanceX", 0, 2, -1, 1, 1.1))
pocket8 = body.newObject("PartDesign::Pocket", "Pocket007")
pocket8.Profile = sketch13
pocket8.Type = "ThroughAll"
pocket8.Reversed = True
body2 = doc.addObject("PartDesign::Body", "Body001")

sketch14 = body2.newObject("Sketcher::SketchObject", "Sketch013")
sketch14.AttachmentSupport = (doc.getObject("XY_Plane001"), [""])
sketch14.MapMode = "FlatFace"
sketch14.AttachmentOffset = App.Placement(App.Vector(0, 0, -14), App.Rotation())
add_polygon(sketch14, [(14.5, 0.2), (14.5, -0.2), (16, -0.2), (16, 0.2)])
sketch14.addConstraint(Sketcher.Constraint("Vertical", 0))
sketch14.addConstraint(Sketcher.Constraint("Horizontal", 1))
sketch14.addConstraint(Sketcher.Constraint("Vertical", 2))
sketch14.addConstraint(Sketcher.Constraint("Horizontal", 3))
sketch14.addConstraint(Sketcher.Constraint("DistanceY", 0, 2, 0, 1, 0.4))
sketch14.addConstraint(Sketcher.Constraint("DistanceX", -1, 1, 0, 2, 14.5))
sketch14.addConstraint(Sketcher.Constraint("DistanceX", 1, 1, 1, 2, 1.498742))
sketch14.addConstraint(Sketcher.Constraint("DistanceY", 0, 2, -1, 1, 0.199361))
pad5 = body2.newObject("PartDesign::Pad", "Pad004")
pad5.Profile = sketch14
pad5.Length = 3
pad5.Reversed = True

doc.recompute()
